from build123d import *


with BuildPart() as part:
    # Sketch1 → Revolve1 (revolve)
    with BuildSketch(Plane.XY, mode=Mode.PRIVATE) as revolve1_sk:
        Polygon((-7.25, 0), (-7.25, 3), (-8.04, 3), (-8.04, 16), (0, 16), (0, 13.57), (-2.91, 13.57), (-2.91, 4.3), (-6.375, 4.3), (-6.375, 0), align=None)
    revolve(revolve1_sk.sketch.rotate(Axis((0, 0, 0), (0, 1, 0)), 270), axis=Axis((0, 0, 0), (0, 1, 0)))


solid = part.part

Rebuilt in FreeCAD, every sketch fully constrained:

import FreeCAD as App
import Part
import Sketcher
from FreeCAD import Vector


def add_polygon(sketch, points):
    """Adds a closed chain of lines whose ends are joined by coincident constraints."""
    first, n = sketch.GeometryCount, len(points)
    for a, b in zip(points, points[1:] + points[:1]):
        sketch.addGeometry(Part.LineSegment(App.Vector(*a, 0), App.Vector(*b, 0)), False)
    for i in range(n):
        sketch.addConstraint(Sketcher.Constraint("Coincident", first + i, 2, first + (i + 1) % n, 1))

doc = App.newDocument("Part")
body = doc.addObject("PartDesign::Body", "Body")

sketch1 = body.newObject("Sketcher::SketchObject", "Sketch")
sketch1.AttachmentSupport = (doc.getObject("XY_Plane"), [""])
sketch1.MapMode = "FlatFace"
add_polygon(sketch1, [(-7.2, 3), (-7.2, 0), (-6.4, 0), (-6.4, 4.3), (-2.9, 4.3), (-2.9, 13.6), (0, 13.6), (0, 16), (-8, 16), (-8, 3)])
sketch1.addConstraint([
    Sketcher.Constraint("Vertical", 0),
    Sketcher.Constraint("Horizontal", 1),
    Sketcher.Constraint("Vertical", 2),
    Sketcher.Constraint("Horizontal", 3),
    Sketcher.Constraint("Vertical", 4),
    Sketcher.Constraint("Horizontal", 5),
    Sketcher.Constraint("Vertical", 6),
    Sketcher.Constraint("Horizontal", 7),
    Sketcher.Constraint("Vertical", 8),
    Sketcher.Constraint("Horizontal", 9),
    Sketcher.Constraint("PointOnObject", 0, 2, -1),
    Sketcher.Constraint("PointOnObject", 5, 2, -2),
    Sketcher.Constraint("DistanceY", 0, 2, 0, 1, 3.0),
    Sketcher.Constraint("DistanceY", 8, 2, 8, 1, 13.0),
    Sketcher.Constraint("DistanceY", 2, 1, 2, 2, 4.3),
    Sketcher.Constraint("DistanceX", 5, 1, 5, 2, 2.91),
    Sketcher.Constraint("DistanceX", 7, 2, 7, 1, 8.04),
    Sketcher.Constraint("DistanceX", 9, 1, 9, 2, 0.79),
    Sketcher.Constraint("DistanceY", 4, 1, 4, 2, 9.27),
    Sketcher.Constraint("DistanceX", 1, 1, 1, 2, 0.875),
])
revolution = body.newObject("PartDesign::Revolution", "Revolution")
revolution.Profile = sketch1
revolution.ReferenceAxis = (sketch1, ["V_Axis"])
revolution.Angle = 360

doc.recompute()
